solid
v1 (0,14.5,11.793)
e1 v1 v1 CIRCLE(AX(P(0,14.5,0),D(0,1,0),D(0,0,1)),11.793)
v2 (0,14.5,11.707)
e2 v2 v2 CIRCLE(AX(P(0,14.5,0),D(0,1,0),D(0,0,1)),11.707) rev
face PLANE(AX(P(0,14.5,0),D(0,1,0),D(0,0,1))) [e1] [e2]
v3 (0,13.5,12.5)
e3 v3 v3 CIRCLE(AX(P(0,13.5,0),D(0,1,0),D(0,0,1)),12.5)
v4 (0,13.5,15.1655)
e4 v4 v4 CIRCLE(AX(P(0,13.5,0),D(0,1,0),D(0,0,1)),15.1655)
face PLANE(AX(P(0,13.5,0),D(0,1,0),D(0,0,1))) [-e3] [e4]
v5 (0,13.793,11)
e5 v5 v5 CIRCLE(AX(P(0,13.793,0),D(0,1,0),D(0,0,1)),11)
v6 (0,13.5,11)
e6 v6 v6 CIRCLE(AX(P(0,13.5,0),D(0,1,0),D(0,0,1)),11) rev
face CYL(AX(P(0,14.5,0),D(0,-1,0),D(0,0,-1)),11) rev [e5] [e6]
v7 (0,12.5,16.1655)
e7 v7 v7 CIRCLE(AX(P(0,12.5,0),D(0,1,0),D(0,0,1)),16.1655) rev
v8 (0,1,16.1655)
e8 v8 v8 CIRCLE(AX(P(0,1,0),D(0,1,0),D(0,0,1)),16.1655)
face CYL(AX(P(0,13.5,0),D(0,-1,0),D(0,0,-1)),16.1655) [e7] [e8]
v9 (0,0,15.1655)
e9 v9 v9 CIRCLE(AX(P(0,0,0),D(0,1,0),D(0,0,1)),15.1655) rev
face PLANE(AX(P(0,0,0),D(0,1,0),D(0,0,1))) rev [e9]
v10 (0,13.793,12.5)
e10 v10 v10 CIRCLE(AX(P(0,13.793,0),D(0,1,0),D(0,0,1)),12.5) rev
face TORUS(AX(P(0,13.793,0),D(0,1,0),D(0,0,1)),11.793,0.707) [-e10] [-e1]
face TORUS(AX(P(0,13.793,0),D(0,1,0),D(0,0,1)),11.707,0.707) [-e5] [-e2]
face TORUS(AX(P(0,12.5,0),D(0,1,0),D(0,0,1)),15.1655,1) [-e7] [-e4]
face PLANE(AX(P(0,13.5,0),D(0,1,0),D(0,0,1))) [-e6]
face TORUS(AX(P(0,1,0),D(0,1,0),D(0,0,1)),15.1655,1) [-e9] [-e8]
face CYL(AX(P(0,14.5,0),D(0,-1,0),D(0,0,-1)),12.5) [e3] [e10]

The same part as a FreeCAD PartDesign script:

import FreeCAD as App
import Part
import Sketcher


def edges_at(feature, points):
    """Names of the edges that pass closest to the given points."""
    edges = feature.Shape.Edges
    near = lambda p: min(range(len(edges)), key=lambda i: edges[i].distToShape(Part.Vertex(*p))[0])
    return sorted({f"Edge{near(p) + 1}" for p in points})

doc = App.newDocument("Part")
body = doc.addObject("PartDesign::Body", "Body")

sketch1 = doc.addObject("Sketcher::SketchObject", "Sketch")
body.addObject(sketch1)
sketch1.AttachmentSupport = (doc.XZ_Plane, [""])
sketch1.MapMode = "FlatFace"
sketch1.addGeometry(Part.Circle(App.Vector(0, 0, 0), App.Vector(0, 0, 1), 16), False)
sketch1.addConstraint([
    Sketcher.Constraint("Coincident", 0, 3, -1, 1),
    Sketcher.Constraint("Diameter", 0, 32.331),
])
pad1 = doc.addObject("PartDesign::Pad", "Pad")
body.addObject(pad1)
pad1.Profile = sketch1
pad1.Length = 13.5
pad1.Reversed = True
doc.recompute()

fillet = doc.addObject("PartDesign::Fillet", "Fillet")
body.addObject(fillet)
fillet.Base = (pad1, edges_at(pad1, [(-16.166, 0, 0), (-16.166, 13.5, 0)]))
fillet.Radius = 1

sketch2 = doc.addObject("Sketcher::SketchObject", "Sketch001")
body.addObject(sketch2)
sketch2.AttachmentSupport = (doc.XZ_Plane, [""])
sketch2.MapMode = "FlatFace"
sketch2.AttachmentOffset = App.Placement(App.Vector(0, 0, -13.5), App.Rotation())
sketch2.addGeometry([
    Part.Circle(App.Vector(0, 0, 0), App.Vector(0, 0, 1), 12),
    Part.Circle(App.Vector(0, 0, 0), App.Vector(0, 0, 1), 11),
], False)
sketch2.addConstraint([
    Sketcher.Constraint("Coincident", 0, 3, -1, 1),
    Sketcher.Constraint("Coincident", 1, 3, -1, 1),
    Sketcher.Constraint("Diameter", 0, 25.0),
    Sketcher.Constraint("Diameter", 1, 22.0),
])
pad2 = doc.addObject("PartDesign::Pad", "Pad001")
body.addObject(pad2)
pad2.Profile = sketch2
pad2.Length = 1
pad2.Reversed = True
doc.recompute()

fillet2 = doc.addObject("PartDesign::Fillet", "Fillet001")
body.addObject(fillet2)
fillet2.Base = (pad2, edges_at(pad2, [(-12.5, 14.5, 0), (-11, 14.5, 0)]))
fillet2.Radius = 0.707

doc.recompute()
